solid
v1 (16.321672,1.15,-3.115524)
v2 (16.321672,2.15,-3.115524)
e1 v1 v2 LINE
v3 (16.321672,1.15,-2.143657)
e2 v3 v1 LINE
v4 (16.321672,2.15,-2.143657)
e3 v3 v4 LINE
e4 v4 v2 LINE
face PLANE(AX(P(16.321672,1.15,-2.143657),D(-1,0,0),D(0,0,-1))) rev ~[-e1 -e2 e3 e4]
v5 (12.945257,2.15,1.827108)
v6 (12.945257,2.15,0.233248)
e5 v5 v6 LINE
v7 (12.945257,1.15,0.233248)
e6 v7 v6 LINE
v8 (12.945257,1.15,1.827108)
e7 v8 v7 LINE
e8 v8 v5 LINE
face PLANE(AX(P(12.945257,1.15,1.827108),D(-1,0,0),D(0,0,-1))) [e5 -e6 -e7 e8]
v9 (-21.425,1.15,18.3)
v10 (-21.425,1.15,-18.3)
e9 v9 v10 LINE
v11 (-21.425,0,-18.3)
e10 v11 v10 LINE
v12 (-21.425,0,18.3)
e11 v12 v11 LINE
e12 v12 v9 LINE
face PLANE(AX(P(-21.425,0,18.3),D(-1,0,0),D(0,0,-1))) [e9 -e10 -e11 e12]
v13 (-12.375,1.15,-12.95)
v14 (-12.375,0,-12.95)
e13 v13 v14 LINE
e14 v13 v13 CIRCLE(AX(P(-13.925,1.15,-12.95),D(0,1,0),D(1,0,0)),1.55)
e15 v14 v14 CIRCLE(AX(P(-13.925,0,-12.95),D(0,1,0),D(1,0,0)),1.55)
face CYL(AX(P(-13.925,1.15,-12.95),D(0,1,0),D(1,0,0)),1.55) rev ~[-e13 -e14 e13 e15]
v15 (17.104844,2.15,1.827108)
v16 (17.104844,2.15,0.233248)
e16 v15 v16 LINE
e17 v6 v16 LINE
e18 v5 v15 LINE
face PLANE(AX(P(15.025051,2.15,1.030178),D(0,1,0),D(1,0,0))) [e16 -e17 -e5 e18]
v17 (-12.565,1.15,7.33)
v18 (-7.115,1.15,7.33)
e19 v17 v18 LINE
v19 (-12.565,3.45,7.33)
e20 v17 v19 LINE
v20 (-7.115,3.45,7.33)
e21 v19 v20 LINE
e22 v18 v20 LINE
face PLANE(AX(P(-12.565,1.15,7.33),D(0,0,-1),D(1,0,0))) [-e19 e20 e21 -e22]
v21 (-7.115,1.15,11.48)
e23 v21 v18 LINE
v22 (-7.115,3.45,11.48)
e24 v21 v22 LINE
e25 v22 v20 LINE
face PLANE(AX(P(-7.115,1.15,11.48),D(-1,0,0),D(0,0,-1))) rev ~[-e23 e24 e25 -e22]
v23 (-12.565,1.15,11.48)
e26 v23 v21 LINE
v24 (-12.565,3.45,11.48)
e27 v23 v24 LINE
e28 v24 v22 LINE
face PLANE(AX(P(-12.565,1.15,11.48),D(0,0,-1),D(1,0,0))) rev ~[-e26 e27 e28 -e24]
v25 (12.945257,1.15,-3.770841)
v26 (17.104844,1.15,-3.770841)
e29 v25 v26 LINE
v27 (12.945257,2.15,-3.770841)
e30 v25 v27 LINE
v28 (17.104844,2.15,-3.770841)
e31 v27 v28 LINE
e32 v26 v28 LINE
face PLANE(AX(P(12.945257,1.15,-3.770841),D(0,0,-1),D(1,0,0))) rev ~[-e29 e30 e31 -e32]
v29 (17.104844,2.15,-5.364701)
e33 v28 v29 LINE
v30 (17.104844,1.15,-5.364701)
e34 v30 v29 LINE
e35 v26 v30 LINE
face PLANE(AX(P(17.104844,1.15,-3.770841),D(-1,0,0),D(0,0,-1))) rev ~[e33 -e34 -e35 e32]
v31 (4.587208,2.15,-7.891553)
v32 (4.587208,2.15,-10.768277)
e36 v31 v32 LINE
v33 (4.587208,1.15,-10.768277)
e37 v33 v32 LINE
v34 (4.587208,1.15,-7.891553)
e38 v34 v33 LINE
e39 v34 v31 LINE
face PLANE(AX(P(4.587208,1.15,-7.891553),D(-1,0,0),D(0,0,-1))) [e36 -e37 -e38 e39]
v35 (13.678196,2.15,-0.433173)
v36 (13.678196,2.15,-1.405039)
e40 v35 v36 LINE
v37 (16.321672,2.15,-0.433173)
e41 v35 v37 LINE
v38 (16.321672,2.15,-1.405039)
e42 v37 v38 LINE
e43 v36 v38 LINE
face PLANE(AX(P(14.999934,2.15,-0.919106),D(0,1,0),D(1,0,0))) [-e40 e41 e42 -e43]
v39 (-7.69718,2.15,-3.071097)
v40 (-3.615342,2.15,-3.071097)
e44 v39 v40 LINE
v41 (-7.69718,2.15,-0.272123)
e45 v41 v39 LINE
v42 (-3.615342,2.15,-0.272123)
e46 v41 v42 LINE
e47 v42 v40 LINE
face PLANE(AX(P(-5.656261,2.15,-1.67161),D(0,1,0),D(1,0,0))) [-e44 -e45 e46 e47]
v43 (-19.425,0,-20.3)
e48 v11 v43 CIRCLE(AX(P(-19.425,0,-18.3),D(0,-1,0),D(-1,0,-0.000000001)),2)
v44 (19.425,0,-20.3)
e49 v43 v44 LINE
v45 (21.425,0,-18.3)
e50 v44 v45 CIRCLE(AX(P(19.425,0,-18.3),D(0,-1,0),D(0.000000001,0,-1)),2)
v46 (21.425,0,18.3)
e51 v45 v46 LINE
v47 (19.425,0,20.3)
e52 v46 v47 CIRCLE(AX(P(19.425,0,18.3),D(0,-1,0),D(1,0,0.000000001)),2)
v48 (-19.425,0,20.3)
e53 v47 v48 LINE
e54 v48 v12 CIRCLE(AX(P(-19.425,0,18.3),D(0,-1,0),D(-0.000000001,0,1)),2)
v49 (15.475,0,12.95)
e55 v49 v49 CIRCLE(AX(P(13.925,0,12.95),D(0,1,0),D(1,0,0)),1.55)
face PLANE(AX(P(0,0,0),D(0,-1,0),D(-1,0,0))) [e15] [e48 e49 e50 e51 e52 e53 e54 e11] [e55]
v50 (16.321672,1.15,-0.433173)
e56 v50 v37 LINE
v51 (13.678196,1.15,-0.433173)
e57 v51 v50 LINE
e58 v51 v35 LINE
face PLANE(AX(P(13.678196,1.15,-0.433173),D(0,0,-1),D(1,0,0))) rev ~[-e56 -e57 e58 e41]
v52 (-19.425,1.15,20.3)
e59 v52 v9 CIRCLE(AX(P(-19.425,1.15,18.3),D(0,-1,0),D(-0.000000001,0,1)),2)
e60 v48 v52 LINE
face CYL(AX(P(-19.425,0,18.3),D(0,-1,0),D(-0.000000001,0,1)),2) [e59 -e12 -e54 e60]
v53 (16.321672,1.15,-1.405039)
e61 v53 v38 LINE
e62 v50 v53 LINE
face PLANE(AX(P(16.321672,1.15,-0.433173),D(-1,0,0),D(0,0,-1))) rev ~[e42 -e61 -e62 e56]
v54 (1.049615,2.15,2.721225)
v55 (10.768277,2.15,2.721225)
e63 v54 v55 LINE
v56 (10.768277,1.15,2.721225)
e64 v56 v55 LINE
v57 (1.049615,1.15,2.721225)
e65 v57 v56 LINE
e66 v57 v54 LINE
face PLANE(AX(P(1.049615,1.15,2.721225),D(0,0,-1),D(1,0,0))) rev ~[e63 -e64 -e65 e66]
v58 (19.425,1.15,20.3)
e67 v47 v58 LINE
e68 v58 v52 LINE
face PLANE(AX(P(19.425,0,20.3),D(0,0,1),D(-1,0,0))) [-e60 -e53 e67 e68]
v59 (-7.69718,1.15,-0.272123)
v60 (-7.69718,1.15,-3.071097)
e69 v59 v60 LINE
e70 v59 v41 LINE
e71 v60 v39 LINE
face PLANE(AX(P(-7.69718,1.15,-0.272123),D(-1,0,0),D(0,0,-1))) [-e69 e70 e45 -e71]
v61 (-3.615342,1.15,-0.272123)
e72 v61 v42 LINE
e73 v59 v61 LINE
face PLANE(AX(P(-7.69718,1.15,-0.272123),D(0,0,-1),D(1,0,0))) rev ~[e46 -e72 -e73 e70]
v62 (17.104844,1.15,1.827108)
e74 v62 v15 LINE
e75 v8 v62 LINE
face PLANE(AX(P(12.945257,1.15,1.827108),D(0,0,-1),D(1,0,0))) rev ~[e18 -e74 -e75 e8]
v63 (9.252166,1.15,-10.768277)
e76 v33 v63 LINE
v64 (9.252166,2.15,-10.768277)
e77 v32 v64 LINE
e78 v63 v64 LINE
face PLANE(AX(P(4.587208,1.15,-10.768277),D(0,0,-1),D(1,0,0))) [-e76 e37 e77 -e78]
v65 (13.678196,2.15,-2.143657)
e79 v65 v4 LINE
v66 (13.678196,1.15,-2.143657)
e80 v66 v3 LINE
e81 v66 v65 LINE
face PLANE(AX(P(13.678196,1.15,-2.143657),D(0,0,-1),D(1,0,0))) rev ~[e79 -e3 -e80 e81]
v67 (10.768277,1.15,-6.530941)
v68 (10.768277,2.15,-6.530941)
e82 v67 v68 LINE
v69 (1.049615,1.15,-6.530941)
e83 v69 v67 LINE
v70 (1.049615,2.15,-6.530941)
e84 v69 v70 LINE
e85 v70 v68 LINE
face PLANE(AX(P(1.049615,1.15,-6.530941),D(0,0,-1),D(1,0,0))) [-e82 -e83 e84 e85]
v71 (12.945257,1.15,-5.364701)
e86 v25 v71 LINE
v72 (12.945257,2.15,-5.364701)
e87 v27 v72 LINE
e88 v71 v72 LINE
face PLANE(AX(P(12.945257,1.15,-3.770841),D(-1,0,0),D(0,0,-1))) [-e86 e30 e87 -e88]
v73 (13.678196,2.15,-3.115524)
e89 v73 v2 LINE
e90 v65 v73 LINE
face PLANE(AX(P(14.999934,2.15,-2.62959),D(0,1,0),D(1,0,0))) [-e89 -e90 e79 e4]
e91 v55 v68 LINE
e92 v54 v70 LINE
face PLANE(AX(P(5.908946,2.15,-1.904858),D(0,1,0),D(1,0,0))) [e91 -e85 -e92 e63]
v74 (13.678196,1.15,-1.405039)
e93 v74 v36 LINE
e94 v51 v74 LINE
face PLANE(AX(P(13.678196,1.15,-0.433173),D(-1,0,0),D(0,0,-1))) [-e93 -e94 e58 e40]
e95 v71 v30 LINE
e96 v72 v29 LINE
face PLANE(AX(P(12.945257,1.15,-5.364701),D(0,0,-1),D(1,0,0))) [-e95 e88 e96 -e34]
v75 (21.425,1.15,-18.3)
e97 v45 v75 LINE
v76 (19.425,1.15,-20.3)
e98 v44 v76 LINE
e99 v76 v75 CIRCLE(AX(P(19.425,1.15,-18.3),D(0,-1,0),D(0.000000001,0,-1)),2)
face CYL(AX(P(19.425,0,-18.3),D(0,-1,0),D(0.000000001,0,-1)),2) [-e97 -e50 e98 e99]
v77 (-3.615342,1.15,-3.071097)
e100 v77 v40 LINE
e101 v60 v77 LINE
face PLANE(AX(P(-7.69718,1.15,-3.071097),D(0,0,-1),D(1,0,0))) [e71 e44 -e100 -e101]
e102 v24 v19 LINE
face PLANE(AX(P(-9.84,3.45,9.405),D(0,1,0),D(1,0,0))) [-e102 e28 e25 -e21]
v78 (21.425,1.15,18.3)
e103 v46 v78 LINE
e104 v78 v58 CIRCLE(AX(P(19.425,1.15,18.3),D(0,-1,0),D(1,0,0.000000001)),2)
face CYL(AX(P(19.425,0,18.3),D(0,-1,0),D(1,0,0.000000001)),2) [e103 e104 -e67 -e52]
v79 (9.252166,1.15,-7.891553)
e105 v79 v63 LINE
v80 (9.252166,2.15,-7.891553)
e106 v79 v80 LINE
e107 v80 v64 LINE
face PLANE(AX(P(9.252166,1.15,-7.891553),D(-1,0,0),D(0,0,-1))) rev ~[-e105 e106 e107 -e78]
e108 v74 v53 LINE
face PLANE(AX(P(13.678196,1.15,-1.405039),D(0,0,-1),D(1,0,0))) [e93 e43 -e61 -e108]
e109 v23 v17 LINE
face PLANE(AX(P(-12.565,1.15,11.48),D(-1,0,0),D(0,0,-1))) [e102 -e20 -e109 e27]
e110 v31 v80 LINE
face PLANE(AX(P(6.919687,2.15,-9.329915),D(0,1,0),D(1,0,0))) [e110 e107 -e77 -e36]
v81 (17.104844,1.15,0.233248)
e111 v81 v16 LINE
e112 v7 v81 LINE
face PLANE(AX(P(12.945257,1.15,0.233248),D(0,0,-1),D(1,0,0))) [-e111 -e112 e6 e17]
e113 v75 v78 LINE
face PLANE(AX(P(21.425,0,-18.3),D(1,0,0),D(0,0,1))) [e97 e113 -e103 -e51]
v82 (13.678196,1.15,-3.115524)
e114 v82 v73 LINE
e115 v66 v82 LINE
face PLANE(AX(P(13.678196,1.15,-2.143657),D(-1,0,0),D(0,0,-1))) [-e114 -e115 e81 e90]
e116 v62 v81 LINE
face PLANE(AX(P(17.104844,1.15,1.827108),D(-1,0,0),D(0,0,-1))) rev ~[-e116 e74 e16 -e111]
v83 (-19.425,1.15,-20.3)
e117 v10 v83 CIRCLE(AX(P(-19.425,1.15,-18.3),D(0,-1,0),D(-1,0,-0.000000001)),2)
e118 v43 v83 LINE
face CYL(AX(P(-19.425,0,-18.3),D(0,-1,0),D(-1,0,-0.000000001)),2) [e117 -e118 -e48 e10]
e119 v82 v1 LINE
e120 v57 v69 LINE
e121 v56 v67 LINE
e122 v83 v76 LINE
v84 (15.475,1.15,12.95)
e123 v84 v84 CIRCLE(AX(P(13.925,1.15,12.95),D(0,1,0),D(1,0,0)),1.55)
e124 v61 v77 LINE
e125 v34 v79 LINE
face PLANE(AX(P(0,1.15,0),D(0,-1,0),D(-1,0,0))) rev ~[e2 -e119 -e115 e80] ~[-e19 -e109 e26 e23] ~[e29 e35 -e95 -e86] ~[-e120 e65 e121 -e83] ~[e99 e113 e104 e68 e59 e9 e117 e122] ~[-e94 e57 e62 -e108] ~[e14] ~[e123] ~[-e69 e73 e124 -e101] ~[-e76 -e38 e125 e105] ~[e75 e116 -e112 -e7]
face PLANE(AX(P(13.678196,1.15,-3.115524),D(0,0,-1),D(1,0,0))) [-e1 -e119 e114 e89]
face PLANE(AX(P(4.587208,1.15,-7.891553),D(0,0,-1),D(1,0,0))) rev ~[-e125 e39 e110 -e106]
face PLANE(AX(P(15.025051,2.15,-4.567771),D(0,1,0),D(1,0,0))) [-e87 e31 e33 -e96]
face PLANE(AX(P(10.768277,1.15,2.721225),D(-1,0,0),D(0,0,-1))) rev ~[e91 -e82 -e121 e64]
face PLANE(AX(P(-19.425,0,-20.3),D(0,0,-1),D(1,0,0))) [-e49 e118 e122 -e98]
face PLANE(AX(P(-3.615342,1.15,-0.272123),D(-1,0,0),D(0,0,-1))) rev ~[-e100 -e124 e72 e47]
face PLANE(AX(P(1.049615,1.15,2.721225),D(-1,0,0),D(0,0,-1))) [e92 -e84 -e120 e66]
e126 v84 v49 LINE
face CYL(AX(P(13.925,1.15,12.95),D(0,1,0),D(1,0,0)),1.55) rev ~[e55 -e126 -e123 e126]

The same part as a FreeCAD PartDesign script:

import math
import FreeCAD as App
import Part
import Sketcher

V = App.Vector
Q = App.Units.Quantity


def add_polygon(sketch, points):
    """Adds a closed chain of lines whose ends are joined by coincident constraints."""
    first, n = sketch.GeometryCount, len(points)
    for a, b in zip(points, points[1:] + points[:1]):
        sketch.addGeometry(Part.LineSegment(App.Vector(*a, 0), App.Vector(*b, 0)), False)
    for i in range(n):
        sketch.addConstraint(Sketcher.Constraint("Coincident", first + i, 2, first + (i + 1) % n, 1))

doc = App.newDocument("Part")
params = doc.addObject("Spreadsheet::Sheet", "Params")
for row, (alias, value) in enumerate([
    ("sketch1_radius", "2 mm"),
    ("sketch1_height", "36.6 mm"),
    ("sketch1_width", "38.85 mm"),
    ("pad1_length", "1.15 mm"),
    ("sketch2_diameter", "3.1 mm"),
    ("sketch3_diameter", "3.1 mm"),
    ("sketch4_width", "5.45 mm"),
    ("sketch4_height", "4.15 mm"),
    ("pad2_length", "2.3 mm"),
    ("pad3_length", "1 mm"),
], start=1):
    params.set(f"A{row}", alias)
    params.set(f"B{row}", "=" + value)
    params.setAlias(f"B{row}", alias)

body = doc.addObject("PartDesign::Body", "Body")

sketch1 = body.newObject("Sketcher::SketchObject", "Sketch")
sketch1.AttachmentSupport = (doc.getObject("XZ_Plane"), [""])
sketch1.MapMode = "FlatFace"
sketch1.addGeometry([
    Part.LineSegment(V(19.4, -20.3, 0), V(-19.4, -20.3, 0)),
    Part.ArcOfCircle(Part.Circle(V(-19.4, -18.3, 0), V(0, 0, 1), 2), math.radians(-180), math.radians(-90)),
    Part.LineSegment(V(-21.4, -18.3, 0), V(-21.4, 18.3, 0)),
    Part.ArcOfCircle(Part.Circle(V(-19.4, 18.3, 0), V(0, 0, 1), 2), math.radians(90), math.radians(180)),
    Part.LineSegment(V(-19.4, 20.3, 0), V(19.4, 20.3, 0)),
    Part.ArcOfCircle(Part.Circle(V(19.4, 18.3, 0), V(0, 0, 1), 2), math.radians(0), math.radians(90)),
    Part.LineSegment(V(21.4, 18.3, 0), V(21.4, -18.3, 0)),
    Part.ArcOfCircle(Part.Circle(V(19.4, -18.3, 0), V(0, 0, 1), 2), math.radians(-90), math.radians(0)),
], False)
sketch1.addConstraint([
    Sketcher.Constraint("Tangent", 0, 2, 1, 2),
    Sketcher.Constraint("Tangent", 1, 1, 2, 1),
    Sketcher.Constraint("Tangent", 2, 2, 3, 2),
    Sketcher.Constraint("Tangent", 3, 1, 4, 1),
    Sketcher.Constraint("Tangent", 4, 2, 5, 2),
    Sketcher.Constraint("Tangent", 5, 1, 6, 1),
    Sketcher.Constraint("Tangent", 6, 2, 7, 2),
    Sketcher.Constraint("Tangent", 7, 1, 0, 1),
    Sketcher.Constraint("Horizontal", 0),
    Sketcher.Constraint("Vertical", 2),
    Sketcher.Constraint("Horizontal", 4),
    Sketcher.Constraint("Vertical", 6),
    Sketcher.Constraint("Equal", 1, 3),
    Sketcher.Constraint("Equal", 3, 5),
    Sketcher.Constraint("Equal", 5, 7),
    Sketcher.Constraint("Symmetric", 1, 3, 5, 3, -1, 1),
    Sketcher.Constraint("Radius", 1, Q("2 mm")),
    Sketcher.Constraint("DistanceY", 2, 1, 2, 2, Q("36.6 mm")),
    Sketcher.Constraint("DistanceX", 0, 2, 0, 1, Q("38.85 mm")),
])
sketch1.setExpression("Constraints[16]", "Params.sketch1_radius")
sketch1.setExpression("Constraints[17]", "Params.sketch1_height")
sketch1.setExpression("Constraints[18]", "Params.sketch1_width")
pad1 = body.newObject("PartDesign::Pad", "Pad")
pad1.Profile = sketch1
pad1.setExpression("Length", "Params.pad1_length")
pad1.Reversed = True

sketch2 = body.newObject("Sketcher::SketchObject", "Sketch001")
sketch2.AttachmentSupport = (doc.getObject("XZ_Plane"), [""])
sketch2.MapMode = "FlatFace"
sketch2.AttachmentOffset = App.Placement(V(0, 0, -1.15), App.Rotation())
sketch2.addGeometry(Part.Circle(V(-13.9, -12.9, 0), V(0, 0, 1), 1.6), False)
sketch2.addConstraint([
    Sketcher.Constraint("Diameter", 0, Q("3.1 mm")),
    Sketcher.Constraint("DistanceY", 0, 3, -1, 1, Q("12.95 mm")),
    Sketcher.Constraint("DistanceX", 0, 3, -1, 1, Q("13.925 mm")),
])
sketch2.setExpression("Constraints[0]", "Params.sketch2_diameter")
pocket1 = body.newObject("PartDesign::Pocket", "Pocket")
pocket1.Profile = sketch2
pocket1.Type = "UpToFirst"
pocket1.Reversed = True

sketch3 = body.newObject("Sketcher::SketchObject", "Sketch002")
sketch3.AttachmentSupport = (doc.getObject("XZ_Plane"), [""])
sketch3.MapMode = "FlatFace"
sketch3.AttachmentOffset = App.Placement(V(0, 0, -1.15), App.Rotation())
sketch3.addGeometry(Part.Circle(V(13.9, 12.9, 0), V(0, 0, 1), 1.6), False)
sketch3.addConstraint([
    Sketcher.Constraint("Diameter", 0, Q("3.1 mm")),
    Sketcher.Constraint("DistanceY", -1, 1, 0, 3, Q("12.95 mm")),
    Sketcher.Constraint("DistanceX", -1, 1, 0, 3, Q("13.925 mm")),
])
sketch3.setExpression("Constraints[0]", "Params.sketch3_diameter")
pocket2 = body.newObject("PartDesign::Pocket", "Pocket001")
pocket2.Profile = sketch3
pocket2.Type = "UpToFirst"
pocket2.Reversed = True

sketch4 = body.newObject("Sketcher::SketchObject", "Sketch003")
sketch4.AttachmentSupport = (doc.getObject("XZ_Plane"), [""])
sketch4.MapMode = "FlatFace"
sketch4.AttachmentOffset = App.Placement(V(0, 0, -1.15), App.Rotation())
add_polygon(sketch4, [(-12.6, 7.3), (-12.6, 11.5), (-7.1, 11.5), (-7.1, 7.3)])
sketch4.addConstraint([
    Sketcher.Constraint("Vertical", 0),
    Sketcher.Constraint("Horizontal", 1),
    Sketcher.Constraint("Vertical", 2),
    Sketcher.Constraint("Horizontal", 3),
    Sketcher.Constraint("DistanceX", 1, 1, 1, 2, Q("5.45 mm")),
    Sketcher.Constraint("DistanceY", 0, 1, 0, 2, Q("4.15 mm")),
    Sketcher.Constraint("DistanceY", -1, 1, 0, 2, Q("11.48 mm")),
    Sketcher.Constraint("DistanceX", 0, 2, -1, 1, Q("12.565 mm")),
])
sketch4.setExpression("Constraints[8]", "Params.sketch4_width")
sketch4.setExpression("Constraints[9]", "Params.sketch4_height")
pad2 = body.newObject("PartDesign::Pad", "Pad001")
pad2.Profile = sketch4
pad2.setExpression("Length", "Params.pad2_length")
pad2.Reversed = True

sketch5 = body.newObject("Sketcher::SketchObject", "Sketch004")
sketch5.AttachmentSupport = (doc.getObject("XZ_Plane"), [""])
sketch5.MapMode = "FlatFace"
sketch5.AttachmentOffset = App.Placement(V(0, 0, -1.15), App.Rotation())
add_polygon(sketch5, [(1, -6.5), (1, 2.7), (10.8, 2.7), (10.8, -6.5)])
add_polygon(sketch5, [(4.6, -10.8), (4.6, -7.9), (9.3, -7.9), (9.3, -10.8)])
add_polygon(sketch5, [(-7.7, -3.1), (-7.7, -0.3), (-3.6, -0.3), (-3.6, -3.1)])
add_polygon(sketch5, [(12.9, -5.4), (12.9, -3.8), (17.1, -3.8), (17.1, -5.4)])
add_polygon(sketch5, [(13.7, -3.1), (13.7, -2.1), (16.3, -2.1), (16.3, -3.1)])
add_polygon(sketch5, [(13.7, -1.4), (13.7, -0.4), (16.3, -0.4), (16.3, -1.4)])
add_polygon(sketch5, [(12.9, 0.2), (12.9, 1.8), (17.1, 1.8), (17.1, 0.2)])
sketch5.addConstraint([
    Sketcher.Constraint("Vertical", 0),
    Sketcher.Constraint("Horizontal", 1),
    Sketcher.Constraint("Vertical", 2),
    Sketcher.Constraint("Horizontal", 3),
    Sketcher.Constraint("Vertical", 4),
    Sketcher.Constraint("Horizontal", 5),
    Sketcher.Constraint("Vertical", 6),
    Sketcher.Constraint("Horizontal", 7),
    Sketcher.Constraint("Vertical", 8),
    Sketcher.Constraint("Horizontal", 9),
    Sketcher.Constraint("Vertical", 10),
    Sketcher.Constraint("Horizontal", 11),
    Sketcher.Constraint("Vertical", 12),
    Sketcher.Constraint("Horizontal", 13),
    Sketcher.Constraint("Vertical", 14),
    Sketcher.Constraint("Horizontal", 15),
    Sketcher.Constraint("Vertical", 16),
    Sketcher.Constraint("Horizontal", 17),
    Sketcher.Constraint("Vertical", 18),
    Sketcher.Constraint("Horizontal", 19),
    Sketcher.Constraint("Vertical", 20),
    Sketcher.Constraint("Horizontal", 21),
    Sketcher.Constraint("Vertical", 22),
    Sketcher.Constraint("Horizontal", 23),
    Sketcher.Constraint("Vertical", 24),
    Sketcher.Constraint("Horizontal", 25),
    Sketcher.Constraint("Vertical", 26),
    Sketcher.Constraint("Horizontal", 27),
    Sketcher.Constraint("Vertical", 19, 2, 20, 2),
    Sketcher.Constraint("Vertical", 18, 2, 21, 2),
    Sketcher.Constraint("Vertical", 15, 2, 24, 2),
    Sketcher.Constraint("Vertical", 14, 2, 25, 2),
    Sketcher.Constraint("Equal", 18, 20),
    Sketcher.Constraint("Equal", 14, 24),
    Sketcher.Constraint("DistanceX", 1, 1, 1, 2, Q("9.718662 mm")),
    Sketcher.Constraint("DistanceY", 12, 1, 12, 2, Q("1.59386 mm")),
    Sketcher.Constraint("DistanceY", 14, 2, -1, 1, Q("5.364701 mm")),
    Sketcher.Constraint("DistanceY", 2, 2, 12, 2, Q("2.7601 mm")),
    Sketcher.Constraint("DistanceY", 13, 2, 22, 2, Q("2.365802 mm")),
    Sketcher.Constraint("DistanceX", 5, 1, 5, 2, Q("4.664958 mm")),
    Sketcher.Constraint("DistanceX", 9, 1, 9, 2, Q("4.081838 mm")),
    Sketcher.Constraint("DistanceX", 13, 1, 13, 2, Q("4.159587 mm")),
    Sketcher.Constraint("DistanceX", 17, 1, 17, 2, Q("2.643476 mm")),
    Sketcher.Constraint("DistanceY", 0, 1, 0, 2, Q("9.252166 mm")),
    Sketcher.Constraint("DistanceY", 4, 1, 4, 2, Q("2.876724 mm")),
    Sketcher.Constraint("DistanceY", 8, 1, 8, 2, Q("2.798975 mm")),
    Sketcher.Constraint("DistanceY", 16, 1, 16, 2, Q("0.971866 mm")),
    Sketcher.Constraint("DistanceX", -1, 1, 4, 2, Q("4.587208 mm")),
    Sketcher.Constraint("DistanceX", 8, 2, -1, 1, Q("7.69718 mm")),
    Sketcher.Constraint("DistanceY", -1, 1, 24, 2, Q("1.827108 mm")),
    Sketcher.Constraint("DistanceX", 4, 2, 2, 2, Q("6.181069 mm")),
    Sketcher.Constraint("DistanceY", 4, 2, 0, 2, Q("10.612778 mm")),
    Sketcher.Constraint("DistanceY", 3, 2, 8, 2, Q("6.258818 mm")),
    Sketcher.Constraint("DistanceX", 2, 2, 12, 2, Q("2.17698 mm")),
    Sketcher.Constraint("DistanceX", 12, 2, 16, 2, Q("0.732939 mm")),
    Sketcher.Constraint("DistanceY", 19, 2, 20, 2, Q("2.682351 mm")),
])
pad3 = body.newObject("PartDesign::Pad", "Pad002")
pad3.Profile = sketch5
pad3.setExpression("Length", "Params.pad3_length")
pad3.Reversed = True

doc.recompute()
